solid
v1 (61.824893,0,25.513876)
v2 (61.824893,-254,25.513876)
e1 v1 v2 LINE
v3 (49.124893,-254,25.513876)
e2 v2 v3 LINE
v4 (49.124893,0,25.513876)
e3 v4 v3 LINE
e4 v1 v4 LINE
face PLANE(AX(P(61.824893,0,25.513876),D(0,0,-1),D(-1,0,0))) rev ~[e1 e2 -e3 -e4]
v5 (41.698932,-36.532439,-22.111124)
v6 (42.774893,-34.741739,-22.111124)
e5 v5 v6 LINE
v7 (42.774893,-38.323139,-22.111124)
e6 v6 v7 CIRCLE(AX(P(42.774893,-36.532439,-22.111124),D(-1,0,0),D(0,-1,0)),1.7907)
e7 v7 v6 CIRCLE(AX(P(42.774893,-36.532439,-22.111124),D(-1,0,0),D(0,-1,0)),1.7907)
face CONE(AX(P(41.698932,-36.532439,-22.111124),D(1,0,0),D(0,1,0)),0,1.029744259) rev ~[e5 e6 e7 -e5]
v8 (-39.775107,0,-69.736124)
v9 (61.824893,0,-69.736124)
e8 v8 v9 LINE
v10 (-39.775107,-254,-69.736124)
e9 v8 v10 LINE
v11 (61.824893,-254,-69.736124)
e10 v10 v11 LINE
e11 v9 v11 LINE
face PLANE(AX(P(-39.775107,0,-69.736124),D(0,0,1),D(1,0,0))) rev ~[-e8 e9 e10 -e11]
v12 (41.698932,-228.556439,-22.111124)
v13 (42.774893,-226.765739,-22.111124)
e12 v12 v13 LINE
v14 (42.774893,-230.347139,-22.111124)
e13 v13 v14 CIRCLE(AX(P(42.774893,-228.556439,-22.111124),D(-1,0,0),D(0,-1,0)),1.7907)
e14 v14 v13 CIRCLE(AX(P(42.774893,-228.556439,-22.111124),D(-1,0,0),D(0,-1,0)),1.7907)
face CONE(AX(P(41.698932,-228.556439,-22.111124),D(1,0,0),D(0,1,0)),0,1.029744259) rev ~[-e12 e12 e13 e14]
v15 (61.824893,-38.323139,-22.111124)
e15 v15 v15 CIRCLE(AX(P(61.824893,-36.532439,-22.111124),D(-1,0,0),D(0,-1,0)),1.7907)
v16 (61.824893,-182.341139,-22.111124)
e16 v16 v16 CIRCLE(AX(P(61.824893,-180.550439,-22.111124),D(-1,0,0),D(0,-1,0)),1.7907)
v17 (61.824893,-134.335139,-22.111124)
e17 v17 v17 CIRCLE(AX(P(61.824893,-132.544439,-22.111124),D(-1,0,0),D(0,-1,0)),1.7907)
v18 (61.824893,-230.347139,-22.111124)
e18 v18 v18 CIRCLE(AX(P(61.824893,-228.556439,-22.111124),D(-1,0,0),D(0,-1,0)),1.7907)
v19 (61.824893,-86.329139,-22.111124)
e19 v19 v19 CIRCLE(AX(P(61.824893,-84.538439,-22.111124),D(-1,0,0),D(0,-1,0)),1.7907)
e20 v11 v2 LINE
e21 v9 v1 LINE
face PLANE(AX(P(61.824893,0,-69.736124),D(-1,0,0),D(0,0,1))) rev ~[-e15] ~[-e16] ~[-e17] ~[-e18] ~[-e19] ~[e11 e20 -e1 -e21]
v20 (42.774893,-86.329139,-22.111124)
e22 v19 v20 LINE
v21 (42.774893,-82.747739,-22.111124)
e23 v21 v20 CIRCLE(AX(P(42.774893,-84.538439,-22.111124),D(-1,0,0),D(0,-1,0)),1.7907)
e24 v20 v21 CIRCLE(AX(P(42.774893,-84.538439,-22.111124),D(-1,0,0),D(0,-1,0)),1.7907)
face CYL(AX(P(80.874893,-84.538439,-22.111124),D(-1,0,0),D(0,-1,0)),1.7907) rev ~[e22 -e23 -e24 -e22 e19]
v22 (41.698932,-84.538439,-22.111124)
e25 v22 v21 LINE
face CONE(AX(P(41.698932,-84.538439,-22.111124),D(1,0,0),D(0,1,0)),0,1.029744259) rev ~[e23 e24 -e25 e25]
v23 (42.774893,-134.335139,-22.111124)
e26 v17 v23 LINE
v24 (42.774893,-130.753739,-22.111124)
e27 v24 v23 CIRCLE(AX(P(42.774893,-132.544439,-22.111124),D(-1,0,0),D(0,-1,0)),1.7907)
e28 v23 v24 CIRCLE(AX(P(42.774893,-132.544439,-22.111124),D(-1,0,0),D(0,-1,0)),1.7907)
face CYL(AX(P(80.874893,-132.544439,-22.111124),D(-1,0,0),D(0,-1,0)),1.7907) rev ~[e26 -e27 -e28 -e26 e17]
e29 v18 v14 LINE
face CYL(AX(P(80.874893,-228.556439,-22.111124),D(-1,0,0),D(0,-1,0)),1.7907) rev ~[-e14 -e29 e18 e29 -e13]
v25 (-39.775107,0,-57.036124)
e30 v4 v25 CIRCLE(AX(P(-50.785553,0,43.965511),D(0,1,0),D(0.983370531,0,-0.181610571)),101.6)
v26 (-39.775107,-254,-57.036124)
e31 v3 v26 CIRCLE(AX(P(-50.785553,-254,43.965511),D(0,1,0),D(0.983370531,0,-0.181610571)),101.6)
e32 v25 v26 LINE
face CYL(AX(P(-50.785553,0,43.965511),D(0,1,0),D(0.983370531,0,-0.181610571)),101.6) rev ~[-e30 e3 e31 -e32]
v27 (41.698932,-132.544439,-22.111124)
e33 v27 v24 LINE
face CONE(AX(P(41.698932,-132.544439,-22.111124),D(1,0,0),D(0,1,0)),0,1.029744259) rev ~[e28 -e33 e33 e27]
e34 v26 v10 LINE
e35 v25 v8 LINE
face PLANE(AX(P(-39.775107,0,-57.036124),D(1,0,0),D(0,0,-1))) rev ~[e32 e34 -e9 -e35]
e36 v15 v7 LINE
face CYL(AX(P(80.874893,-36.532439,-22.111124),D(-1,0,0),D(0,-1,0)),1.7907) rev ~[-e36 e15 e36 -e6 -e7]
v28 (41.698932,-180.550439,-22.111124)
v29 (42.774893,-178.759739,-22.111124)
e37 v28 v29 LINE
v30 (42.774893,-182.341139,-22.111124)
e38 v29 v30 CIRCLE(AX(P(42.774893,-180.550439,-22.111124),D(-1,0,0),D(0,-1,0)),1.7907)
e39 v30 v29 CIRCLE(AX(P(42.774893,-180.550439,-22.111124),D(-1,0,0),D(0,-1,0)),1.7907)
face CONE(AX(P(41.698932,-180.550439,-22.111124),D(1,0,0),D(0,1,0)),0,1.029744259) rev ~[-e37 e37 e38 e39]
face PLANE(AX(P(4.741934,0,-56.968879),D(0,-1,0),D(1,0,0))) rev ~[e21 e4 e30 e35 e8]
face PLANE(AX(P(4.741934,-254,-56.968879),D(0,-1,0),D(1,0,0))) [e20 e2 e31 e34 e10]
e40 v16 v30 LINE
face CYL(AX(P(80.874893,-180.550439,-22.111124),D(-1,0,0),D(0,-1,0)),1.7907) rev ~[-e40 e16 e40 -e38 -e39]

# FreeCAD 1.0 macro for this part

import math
import FreeCAD as App
import Part
import Sketcher

V = App.Vector
Q = App.Units.Quantity

doc = App.newDocument("Part")
body = doc.addObject("PartDesign::Body", "Body")

# Sketch on XZ plane
sketch1 = doc.addObject("Sketcher::SketchObject", "Sketch")
body.addObject(sketch1)
sketch1.AttachmentSupport = (doc.XZ_Plane, [""])
sketch1.MapMode = "FlatFace"
sketch1.addGeometry(Part.ArcOfCircle(Part.Circle(V(-51, 44, 0), V(0, 0, 1), 102), math.radians(-84), math.radians(-10)), False)
sketch1.addGeometry(Part.LineSegment(V(-40, -57, 0), V(-40, -70, 0)), False)
sketch1.addGeometry(Part.LineSegment(V(-40, -70, 0), V(62, -70, 0)), False)
sketch1.addGeometry(Part.LineSegment(V(62, -70, 0), V(62, 26, 0)), False)
sketch1.addGeometry(Part.LineSegment(V(62, 26, 0), V(49, 26, 0)), False)
sketch1.addConstraint(Sketcher.Constraint("Coincident", 0, 1, 1, 1))
sketch1.addConstraint(Sketcher.Constraint("Coincident", 1, 2, 2, 1))
sketch1.addConstraint(Sketcher.Constraint("Coincident", 2, 2, 3, 1))
sketch1.addConstraint(Sketcher.Constraint("Coincident", 3, 2, 4, 1))
sketch1.addConstraint(Sketcher.Constraint("Coincident", 4, 2, 0, 2))
sketch1.addConstraint(Sketcher.Constraint("Vertical", 1))
sketch1.addConstraint(Sketcher.Constraint("Horizontal", 2))
sketch1.addConstraint(Sketcher.Constraint("Vertical", 3))
sketch1.addConstraint(Sketcher.Constraint("Horizontal", 4))
sketch1.addConstraint(Sketcher.Constraint("Equal", 4, 1))
sketch1.addConstraint(Sketcher.Constraint("Radius", 0, Q("4 in")))
sketch1.addConstraint(Sketcher.Constraint("DistanceX", 2, 1, 2, 2, Q("4 in")))
sketch1.addConstraint(Sketcher.Constraint("DistanceX", 4, 2, 4, 1, Q("0.5 in")))
sketch1.addConstraint(Sketcher.Constraint("DistanceY", 3, 1, 3, 2, Q("3.75 in")))
sketch1.addConstraint(Sketcher.Constraint("DistanceY", -1, 1, 0, 3, Q("43.965511 mm")))
sketch1.addConstraint(Sketcher.Constraint("DistanceX", 0, 3, -1, 1, Q("50.785553 mm")))
pad1 = doc.addObject("PartDesign::Pad", "Pad")
body.addObject(pad1)
pad1.Profile = sketch1
pad1.Length = Q("10 in")

# Sketch on YZ plane
sketch2 = doc.addObject("Sketcher::SketchObject", "Sketch001")
body.addObject(sketch2)
sketch2.AttachmentSupport = (doc.YZ_Plane, [""])
sketch2.MapMode = "FlatFace"
sketch2.AttachmentOffset = App.Placement(V(0, 0, 61.824893), App.Rotation())
sketch2.addGeometry(Part.Circle(V(-228.6, -22.1, 0), V(0, 0, 1), 1.8), False)
sketch2.addGeometry(Part.Circle(V(-180.6, -22.1, 0), V(0, 0, 1), 1.8), False)
sketch2.addGeometry(Part.Circle(V(-132.5, -22.1, 0), V(0, 0, 1), 1.8), False)
sketch2.addGeometry(Part.Circle(V(-84.5, -22.1, 0), V(0, 0, 1), 1.8), False)
sketch2.addGeometry(Part.Circle(V(-36.5, -22.1, 0), V(0, 0, 1), 1.8), False)
sketch2.addConstraint(Sketcher.Constraint("Equal", 0, 1))
sketch2.addConstraint(Sketcher.Constraint("Equal", 1, 2))
sketch2.addConstraint(Sketcher.Constraint("Equal", 2, 3))
sketch2.addConstraint(Sketcher.Constraint("Equal", 3, 4))
sketch2.addConstraint(Sketcher.Constraint("Horizontal", 0, 3, 1, 3))
sketch2.addConstraint(Sketcher.Constraint("Horizontal", 1, 3, 2, 3))
sketch2.addConstraint(Sketcher.Constraint("Horizontal", 2, 3, 3, 3))
sketch2.addConstraint(Sketcher.Constraint("Horizontal", 3, 3, 4, 3))
sketch2.addConstraint(Sketcher.Constraint("Diameter", 0, Q("0.141 in")))
sketch2.addConstraint(Sketcher.Constraint("DistanceX", 0, 3, 1, 3, Q("1.89 in")))
sketch2.addConstraint(Sketcher.Constraint("DistanceX", 1, 3, 2, 3, Q("1.89 in")))
sketch2.addConstraint(Sketcher.Constraint("DistanceX", 2, 3, 3, 3, Q("1.89 in")))
sketch2.addConstraint(Sketcher.Constraint("DistanceX", 3, 3, 4, 3, Q("1.89 in")))
sketch2.addConstraint(Sketcher.Constraint("DistanceX", 0, 3, -1, 1, Q("228.556439 mm")))
sketch2.addConstraint(Sketcher.Constraint("DistanceY", 0, 3, -1, 1, Q("22.111124 mm")))
doc.recompute()
hole = doc.addObject("PartDesign::Hole", "Hole")
body.addObject(hole)
hole.Profile = sketch2
hole.ThreadType = "None"
hole.Diameter = Q("0.141 in")
hole.DepthType = "Dimension"
hole.Depth = Q("0.75 in")
hole.DrillPoint = "Angled"
hole.DrillPointAngle = 118

doc.recompute()
